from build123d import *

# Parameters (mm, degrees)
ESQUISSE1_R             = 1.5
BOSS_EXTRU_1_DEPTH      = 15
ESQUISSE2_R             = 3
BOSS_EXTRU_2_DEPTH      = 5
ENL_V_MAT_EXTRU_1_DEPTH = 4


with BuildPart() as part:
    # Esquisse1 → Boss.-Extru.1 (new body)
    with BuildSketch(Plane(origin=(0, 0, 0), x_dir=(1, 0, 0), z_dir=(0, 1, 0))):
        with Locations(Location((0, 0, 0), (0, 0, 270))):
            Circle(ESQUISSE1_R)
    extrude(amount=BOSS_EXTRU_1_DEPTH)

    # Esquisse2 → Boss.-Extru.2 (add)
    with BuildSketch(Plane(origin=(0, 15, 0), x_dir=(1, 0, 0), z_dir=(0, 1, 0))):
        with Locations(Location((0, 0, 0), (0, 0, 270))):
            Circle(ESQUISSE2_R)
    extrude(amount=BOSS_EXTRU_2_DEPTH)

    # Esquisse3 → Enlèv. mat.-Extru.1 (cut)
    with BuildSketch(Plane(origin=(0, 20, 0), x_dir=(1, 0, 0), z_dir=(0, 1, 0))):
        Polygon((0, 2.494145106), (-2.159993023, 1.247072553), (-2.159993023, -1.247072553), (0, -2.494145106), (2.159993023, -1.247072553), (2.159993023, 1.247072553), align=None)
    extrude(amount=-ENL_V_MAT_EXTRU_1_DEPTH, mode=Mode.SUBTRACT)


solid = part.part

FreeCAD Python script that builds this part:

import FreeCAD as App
import Part
import Sketcher
from FreeCAD import Vector
Q = App.Units.Quantity

doc = App.newDocument("Part")
params = doc.addObject("Spreadsheet::Sheet", "Params")
for row, (alias, value) in enumerate([
    ("sketch1_diameter", "3 mm"),
    ("pad1_length", "15 mm"),
    ("sketch2_diameter", "6 mm"),
    ("pad2_length", "5 mm"),
    ("pocket1_length", "4 mm"),
], start=1):
    params.set(f"A{row}", alias)
    params.set(f"B{row}", "=" + value)
    params.setAlias(f"B{row}", alias)

body = doc.addObject("PartDesign::Body", "Body")

# Sketch on XZ plane
sketch1 = body.newObject("Sketcher::SketchObject", "Sketch")
sketch1.AttachmentSupport = (doc.getObject("XZ_Plane"), [""])
sketch1.MapMode = "FlatFace"
sketch1.addGeometry(Part.Circle(Vector(0, 0, 0), Vector(0, 0, 1), 1.5), False)
sketch1.addConstraint([
    Sketcher.Constraint("Coincident", 0, 3, -1, 1),
    Sketcher.Constraint("Diameter", 0, Q("3 mm")),
])
sketch1.setExpression("Constraints[1]", "Params.sketch1_diameter")
pad1 = body.newObject("PartDesign::Pad", "Pad")
pad1.Profile = sketch1
pad1.setExpression("Length", "Params.pad1_length")
pad1.Reversed = True

# Sketch on XZ plane
sketch2 = body.newObject("Sketcher::SketchObject", "Sketch001")
sketch2.AttachmentSupport = (doc.getObject("XZ_Plane"), [""])
sketch2.MapMode = "FlatFace"
sketch2.AttachmentOffset = App.Placement(Vector(0, 0, -15), App.Rotation())
sketch2.addGeometry(Part.Circle(Vector(0, 0, 0), Vector(0, 0, 1), 3), False)
sketch2.addConstraint([
    Sketcher.Constraint("Coincident", 0, 3, -1, 1),
    Sketcher.Constraint("Diameter", 0, Q("6 mm")),
])
sketch2.setExpression("Constraints[1]", "Params.sketch2_diameter")
pad2 = body.newObject("PartDesign::Pad", "Pad001")
pad2.Profile = sketch2
pad2.setExpression("Length", "Params.pad2_length")
pad2.Reversed = True

# Sketch on XZ plane
sketch3 = body.newObject("Sketcher::SketchObject", "Sketch002")
sketch3.AttachmentSupport = (doc.getObject("XZ_Plane"), [""])
sketch3.MapMode = "FlatFace"
sketch3.AttachmentOffset = App.Placement(Vector(0, 0, -20), App.Rotation())
sketch3.addGeometry([
    Part.LineSegment(Vector(0, -2.5, 0), Vector(-2.2, -1.2, 0)),  # 0
    Part.LineSegment(Vector(-2.2, -1.2, 0), Vector(-2.2, 1.2, 0)),  # 1
    Part.LineSegment(Vector(-2.2, 1.2, 0), Vector(0, 2.5, 0)),  # 2
    Part.LineSegment(Vector(0, 2.5, 0), Vector(2.2, 1.2, 0)),  # 3
    Part.LineSegment(Vector(2.2, 1.2, 0), Vector(2.2, -1.2, 0)),  # 4
    Part.LineSegment(Vector(2.2, -1.2, 0), Vector(0, -2.5, 0)),  # 5
], False)
sketch3.addConstraint([
    Sketcher.Constraint("Coincident", 0, 2, 1, 1),
    Sketcher.Constraint("Coincident", 1, 2, 2, 1),
    Sketcher.Constraint("Coincident", 2, 2, 3, 1),
    Sketcher.Constraint("Coincident", 3, 2, 4, 1),
    Sketcher.Constraint("Coincident", 4, 2, 5, 1),
    Sketcher.Constraint("Coincident", 5, 2, 0, 1),
    Sketcher.Constraint("Vertical", 1),
    Sketcher.Constraint("Vertical", 4),
    Sketcher.Constraint("Symmetric", 0, 2, 3, 2, -1, 1),
    Sketcher.Constraint("Symmetric", 2, 2, 5, 2, -1, 1),
    Sketcher.Constraint("PointOnObject", 2, 2, -2),
    Sketcher.Constraint("Parallel", 2, 5),
    Sketcher.Constraint("Horizontal", 1, 2, 3, 2),
    Sketcher.Constraint("Angle", 0, Q("150 deg")),
    Sketcher.Constraint("DistanceY", 1, 1, 1, 2, Q("2.494145 mm")),
    Sketcher.Constraint("DistanceY", 5, 2, 2, 2, Q("4.98829 mm")),
])
pocket1 = body.newObject("PartDesign::Pocket", "Pocket")
pocket1.Profile = sketch3
pocket1.setExpression("Length", "Params.pocket1_length")
pocket1.Reversed = True

doc.recompute()
